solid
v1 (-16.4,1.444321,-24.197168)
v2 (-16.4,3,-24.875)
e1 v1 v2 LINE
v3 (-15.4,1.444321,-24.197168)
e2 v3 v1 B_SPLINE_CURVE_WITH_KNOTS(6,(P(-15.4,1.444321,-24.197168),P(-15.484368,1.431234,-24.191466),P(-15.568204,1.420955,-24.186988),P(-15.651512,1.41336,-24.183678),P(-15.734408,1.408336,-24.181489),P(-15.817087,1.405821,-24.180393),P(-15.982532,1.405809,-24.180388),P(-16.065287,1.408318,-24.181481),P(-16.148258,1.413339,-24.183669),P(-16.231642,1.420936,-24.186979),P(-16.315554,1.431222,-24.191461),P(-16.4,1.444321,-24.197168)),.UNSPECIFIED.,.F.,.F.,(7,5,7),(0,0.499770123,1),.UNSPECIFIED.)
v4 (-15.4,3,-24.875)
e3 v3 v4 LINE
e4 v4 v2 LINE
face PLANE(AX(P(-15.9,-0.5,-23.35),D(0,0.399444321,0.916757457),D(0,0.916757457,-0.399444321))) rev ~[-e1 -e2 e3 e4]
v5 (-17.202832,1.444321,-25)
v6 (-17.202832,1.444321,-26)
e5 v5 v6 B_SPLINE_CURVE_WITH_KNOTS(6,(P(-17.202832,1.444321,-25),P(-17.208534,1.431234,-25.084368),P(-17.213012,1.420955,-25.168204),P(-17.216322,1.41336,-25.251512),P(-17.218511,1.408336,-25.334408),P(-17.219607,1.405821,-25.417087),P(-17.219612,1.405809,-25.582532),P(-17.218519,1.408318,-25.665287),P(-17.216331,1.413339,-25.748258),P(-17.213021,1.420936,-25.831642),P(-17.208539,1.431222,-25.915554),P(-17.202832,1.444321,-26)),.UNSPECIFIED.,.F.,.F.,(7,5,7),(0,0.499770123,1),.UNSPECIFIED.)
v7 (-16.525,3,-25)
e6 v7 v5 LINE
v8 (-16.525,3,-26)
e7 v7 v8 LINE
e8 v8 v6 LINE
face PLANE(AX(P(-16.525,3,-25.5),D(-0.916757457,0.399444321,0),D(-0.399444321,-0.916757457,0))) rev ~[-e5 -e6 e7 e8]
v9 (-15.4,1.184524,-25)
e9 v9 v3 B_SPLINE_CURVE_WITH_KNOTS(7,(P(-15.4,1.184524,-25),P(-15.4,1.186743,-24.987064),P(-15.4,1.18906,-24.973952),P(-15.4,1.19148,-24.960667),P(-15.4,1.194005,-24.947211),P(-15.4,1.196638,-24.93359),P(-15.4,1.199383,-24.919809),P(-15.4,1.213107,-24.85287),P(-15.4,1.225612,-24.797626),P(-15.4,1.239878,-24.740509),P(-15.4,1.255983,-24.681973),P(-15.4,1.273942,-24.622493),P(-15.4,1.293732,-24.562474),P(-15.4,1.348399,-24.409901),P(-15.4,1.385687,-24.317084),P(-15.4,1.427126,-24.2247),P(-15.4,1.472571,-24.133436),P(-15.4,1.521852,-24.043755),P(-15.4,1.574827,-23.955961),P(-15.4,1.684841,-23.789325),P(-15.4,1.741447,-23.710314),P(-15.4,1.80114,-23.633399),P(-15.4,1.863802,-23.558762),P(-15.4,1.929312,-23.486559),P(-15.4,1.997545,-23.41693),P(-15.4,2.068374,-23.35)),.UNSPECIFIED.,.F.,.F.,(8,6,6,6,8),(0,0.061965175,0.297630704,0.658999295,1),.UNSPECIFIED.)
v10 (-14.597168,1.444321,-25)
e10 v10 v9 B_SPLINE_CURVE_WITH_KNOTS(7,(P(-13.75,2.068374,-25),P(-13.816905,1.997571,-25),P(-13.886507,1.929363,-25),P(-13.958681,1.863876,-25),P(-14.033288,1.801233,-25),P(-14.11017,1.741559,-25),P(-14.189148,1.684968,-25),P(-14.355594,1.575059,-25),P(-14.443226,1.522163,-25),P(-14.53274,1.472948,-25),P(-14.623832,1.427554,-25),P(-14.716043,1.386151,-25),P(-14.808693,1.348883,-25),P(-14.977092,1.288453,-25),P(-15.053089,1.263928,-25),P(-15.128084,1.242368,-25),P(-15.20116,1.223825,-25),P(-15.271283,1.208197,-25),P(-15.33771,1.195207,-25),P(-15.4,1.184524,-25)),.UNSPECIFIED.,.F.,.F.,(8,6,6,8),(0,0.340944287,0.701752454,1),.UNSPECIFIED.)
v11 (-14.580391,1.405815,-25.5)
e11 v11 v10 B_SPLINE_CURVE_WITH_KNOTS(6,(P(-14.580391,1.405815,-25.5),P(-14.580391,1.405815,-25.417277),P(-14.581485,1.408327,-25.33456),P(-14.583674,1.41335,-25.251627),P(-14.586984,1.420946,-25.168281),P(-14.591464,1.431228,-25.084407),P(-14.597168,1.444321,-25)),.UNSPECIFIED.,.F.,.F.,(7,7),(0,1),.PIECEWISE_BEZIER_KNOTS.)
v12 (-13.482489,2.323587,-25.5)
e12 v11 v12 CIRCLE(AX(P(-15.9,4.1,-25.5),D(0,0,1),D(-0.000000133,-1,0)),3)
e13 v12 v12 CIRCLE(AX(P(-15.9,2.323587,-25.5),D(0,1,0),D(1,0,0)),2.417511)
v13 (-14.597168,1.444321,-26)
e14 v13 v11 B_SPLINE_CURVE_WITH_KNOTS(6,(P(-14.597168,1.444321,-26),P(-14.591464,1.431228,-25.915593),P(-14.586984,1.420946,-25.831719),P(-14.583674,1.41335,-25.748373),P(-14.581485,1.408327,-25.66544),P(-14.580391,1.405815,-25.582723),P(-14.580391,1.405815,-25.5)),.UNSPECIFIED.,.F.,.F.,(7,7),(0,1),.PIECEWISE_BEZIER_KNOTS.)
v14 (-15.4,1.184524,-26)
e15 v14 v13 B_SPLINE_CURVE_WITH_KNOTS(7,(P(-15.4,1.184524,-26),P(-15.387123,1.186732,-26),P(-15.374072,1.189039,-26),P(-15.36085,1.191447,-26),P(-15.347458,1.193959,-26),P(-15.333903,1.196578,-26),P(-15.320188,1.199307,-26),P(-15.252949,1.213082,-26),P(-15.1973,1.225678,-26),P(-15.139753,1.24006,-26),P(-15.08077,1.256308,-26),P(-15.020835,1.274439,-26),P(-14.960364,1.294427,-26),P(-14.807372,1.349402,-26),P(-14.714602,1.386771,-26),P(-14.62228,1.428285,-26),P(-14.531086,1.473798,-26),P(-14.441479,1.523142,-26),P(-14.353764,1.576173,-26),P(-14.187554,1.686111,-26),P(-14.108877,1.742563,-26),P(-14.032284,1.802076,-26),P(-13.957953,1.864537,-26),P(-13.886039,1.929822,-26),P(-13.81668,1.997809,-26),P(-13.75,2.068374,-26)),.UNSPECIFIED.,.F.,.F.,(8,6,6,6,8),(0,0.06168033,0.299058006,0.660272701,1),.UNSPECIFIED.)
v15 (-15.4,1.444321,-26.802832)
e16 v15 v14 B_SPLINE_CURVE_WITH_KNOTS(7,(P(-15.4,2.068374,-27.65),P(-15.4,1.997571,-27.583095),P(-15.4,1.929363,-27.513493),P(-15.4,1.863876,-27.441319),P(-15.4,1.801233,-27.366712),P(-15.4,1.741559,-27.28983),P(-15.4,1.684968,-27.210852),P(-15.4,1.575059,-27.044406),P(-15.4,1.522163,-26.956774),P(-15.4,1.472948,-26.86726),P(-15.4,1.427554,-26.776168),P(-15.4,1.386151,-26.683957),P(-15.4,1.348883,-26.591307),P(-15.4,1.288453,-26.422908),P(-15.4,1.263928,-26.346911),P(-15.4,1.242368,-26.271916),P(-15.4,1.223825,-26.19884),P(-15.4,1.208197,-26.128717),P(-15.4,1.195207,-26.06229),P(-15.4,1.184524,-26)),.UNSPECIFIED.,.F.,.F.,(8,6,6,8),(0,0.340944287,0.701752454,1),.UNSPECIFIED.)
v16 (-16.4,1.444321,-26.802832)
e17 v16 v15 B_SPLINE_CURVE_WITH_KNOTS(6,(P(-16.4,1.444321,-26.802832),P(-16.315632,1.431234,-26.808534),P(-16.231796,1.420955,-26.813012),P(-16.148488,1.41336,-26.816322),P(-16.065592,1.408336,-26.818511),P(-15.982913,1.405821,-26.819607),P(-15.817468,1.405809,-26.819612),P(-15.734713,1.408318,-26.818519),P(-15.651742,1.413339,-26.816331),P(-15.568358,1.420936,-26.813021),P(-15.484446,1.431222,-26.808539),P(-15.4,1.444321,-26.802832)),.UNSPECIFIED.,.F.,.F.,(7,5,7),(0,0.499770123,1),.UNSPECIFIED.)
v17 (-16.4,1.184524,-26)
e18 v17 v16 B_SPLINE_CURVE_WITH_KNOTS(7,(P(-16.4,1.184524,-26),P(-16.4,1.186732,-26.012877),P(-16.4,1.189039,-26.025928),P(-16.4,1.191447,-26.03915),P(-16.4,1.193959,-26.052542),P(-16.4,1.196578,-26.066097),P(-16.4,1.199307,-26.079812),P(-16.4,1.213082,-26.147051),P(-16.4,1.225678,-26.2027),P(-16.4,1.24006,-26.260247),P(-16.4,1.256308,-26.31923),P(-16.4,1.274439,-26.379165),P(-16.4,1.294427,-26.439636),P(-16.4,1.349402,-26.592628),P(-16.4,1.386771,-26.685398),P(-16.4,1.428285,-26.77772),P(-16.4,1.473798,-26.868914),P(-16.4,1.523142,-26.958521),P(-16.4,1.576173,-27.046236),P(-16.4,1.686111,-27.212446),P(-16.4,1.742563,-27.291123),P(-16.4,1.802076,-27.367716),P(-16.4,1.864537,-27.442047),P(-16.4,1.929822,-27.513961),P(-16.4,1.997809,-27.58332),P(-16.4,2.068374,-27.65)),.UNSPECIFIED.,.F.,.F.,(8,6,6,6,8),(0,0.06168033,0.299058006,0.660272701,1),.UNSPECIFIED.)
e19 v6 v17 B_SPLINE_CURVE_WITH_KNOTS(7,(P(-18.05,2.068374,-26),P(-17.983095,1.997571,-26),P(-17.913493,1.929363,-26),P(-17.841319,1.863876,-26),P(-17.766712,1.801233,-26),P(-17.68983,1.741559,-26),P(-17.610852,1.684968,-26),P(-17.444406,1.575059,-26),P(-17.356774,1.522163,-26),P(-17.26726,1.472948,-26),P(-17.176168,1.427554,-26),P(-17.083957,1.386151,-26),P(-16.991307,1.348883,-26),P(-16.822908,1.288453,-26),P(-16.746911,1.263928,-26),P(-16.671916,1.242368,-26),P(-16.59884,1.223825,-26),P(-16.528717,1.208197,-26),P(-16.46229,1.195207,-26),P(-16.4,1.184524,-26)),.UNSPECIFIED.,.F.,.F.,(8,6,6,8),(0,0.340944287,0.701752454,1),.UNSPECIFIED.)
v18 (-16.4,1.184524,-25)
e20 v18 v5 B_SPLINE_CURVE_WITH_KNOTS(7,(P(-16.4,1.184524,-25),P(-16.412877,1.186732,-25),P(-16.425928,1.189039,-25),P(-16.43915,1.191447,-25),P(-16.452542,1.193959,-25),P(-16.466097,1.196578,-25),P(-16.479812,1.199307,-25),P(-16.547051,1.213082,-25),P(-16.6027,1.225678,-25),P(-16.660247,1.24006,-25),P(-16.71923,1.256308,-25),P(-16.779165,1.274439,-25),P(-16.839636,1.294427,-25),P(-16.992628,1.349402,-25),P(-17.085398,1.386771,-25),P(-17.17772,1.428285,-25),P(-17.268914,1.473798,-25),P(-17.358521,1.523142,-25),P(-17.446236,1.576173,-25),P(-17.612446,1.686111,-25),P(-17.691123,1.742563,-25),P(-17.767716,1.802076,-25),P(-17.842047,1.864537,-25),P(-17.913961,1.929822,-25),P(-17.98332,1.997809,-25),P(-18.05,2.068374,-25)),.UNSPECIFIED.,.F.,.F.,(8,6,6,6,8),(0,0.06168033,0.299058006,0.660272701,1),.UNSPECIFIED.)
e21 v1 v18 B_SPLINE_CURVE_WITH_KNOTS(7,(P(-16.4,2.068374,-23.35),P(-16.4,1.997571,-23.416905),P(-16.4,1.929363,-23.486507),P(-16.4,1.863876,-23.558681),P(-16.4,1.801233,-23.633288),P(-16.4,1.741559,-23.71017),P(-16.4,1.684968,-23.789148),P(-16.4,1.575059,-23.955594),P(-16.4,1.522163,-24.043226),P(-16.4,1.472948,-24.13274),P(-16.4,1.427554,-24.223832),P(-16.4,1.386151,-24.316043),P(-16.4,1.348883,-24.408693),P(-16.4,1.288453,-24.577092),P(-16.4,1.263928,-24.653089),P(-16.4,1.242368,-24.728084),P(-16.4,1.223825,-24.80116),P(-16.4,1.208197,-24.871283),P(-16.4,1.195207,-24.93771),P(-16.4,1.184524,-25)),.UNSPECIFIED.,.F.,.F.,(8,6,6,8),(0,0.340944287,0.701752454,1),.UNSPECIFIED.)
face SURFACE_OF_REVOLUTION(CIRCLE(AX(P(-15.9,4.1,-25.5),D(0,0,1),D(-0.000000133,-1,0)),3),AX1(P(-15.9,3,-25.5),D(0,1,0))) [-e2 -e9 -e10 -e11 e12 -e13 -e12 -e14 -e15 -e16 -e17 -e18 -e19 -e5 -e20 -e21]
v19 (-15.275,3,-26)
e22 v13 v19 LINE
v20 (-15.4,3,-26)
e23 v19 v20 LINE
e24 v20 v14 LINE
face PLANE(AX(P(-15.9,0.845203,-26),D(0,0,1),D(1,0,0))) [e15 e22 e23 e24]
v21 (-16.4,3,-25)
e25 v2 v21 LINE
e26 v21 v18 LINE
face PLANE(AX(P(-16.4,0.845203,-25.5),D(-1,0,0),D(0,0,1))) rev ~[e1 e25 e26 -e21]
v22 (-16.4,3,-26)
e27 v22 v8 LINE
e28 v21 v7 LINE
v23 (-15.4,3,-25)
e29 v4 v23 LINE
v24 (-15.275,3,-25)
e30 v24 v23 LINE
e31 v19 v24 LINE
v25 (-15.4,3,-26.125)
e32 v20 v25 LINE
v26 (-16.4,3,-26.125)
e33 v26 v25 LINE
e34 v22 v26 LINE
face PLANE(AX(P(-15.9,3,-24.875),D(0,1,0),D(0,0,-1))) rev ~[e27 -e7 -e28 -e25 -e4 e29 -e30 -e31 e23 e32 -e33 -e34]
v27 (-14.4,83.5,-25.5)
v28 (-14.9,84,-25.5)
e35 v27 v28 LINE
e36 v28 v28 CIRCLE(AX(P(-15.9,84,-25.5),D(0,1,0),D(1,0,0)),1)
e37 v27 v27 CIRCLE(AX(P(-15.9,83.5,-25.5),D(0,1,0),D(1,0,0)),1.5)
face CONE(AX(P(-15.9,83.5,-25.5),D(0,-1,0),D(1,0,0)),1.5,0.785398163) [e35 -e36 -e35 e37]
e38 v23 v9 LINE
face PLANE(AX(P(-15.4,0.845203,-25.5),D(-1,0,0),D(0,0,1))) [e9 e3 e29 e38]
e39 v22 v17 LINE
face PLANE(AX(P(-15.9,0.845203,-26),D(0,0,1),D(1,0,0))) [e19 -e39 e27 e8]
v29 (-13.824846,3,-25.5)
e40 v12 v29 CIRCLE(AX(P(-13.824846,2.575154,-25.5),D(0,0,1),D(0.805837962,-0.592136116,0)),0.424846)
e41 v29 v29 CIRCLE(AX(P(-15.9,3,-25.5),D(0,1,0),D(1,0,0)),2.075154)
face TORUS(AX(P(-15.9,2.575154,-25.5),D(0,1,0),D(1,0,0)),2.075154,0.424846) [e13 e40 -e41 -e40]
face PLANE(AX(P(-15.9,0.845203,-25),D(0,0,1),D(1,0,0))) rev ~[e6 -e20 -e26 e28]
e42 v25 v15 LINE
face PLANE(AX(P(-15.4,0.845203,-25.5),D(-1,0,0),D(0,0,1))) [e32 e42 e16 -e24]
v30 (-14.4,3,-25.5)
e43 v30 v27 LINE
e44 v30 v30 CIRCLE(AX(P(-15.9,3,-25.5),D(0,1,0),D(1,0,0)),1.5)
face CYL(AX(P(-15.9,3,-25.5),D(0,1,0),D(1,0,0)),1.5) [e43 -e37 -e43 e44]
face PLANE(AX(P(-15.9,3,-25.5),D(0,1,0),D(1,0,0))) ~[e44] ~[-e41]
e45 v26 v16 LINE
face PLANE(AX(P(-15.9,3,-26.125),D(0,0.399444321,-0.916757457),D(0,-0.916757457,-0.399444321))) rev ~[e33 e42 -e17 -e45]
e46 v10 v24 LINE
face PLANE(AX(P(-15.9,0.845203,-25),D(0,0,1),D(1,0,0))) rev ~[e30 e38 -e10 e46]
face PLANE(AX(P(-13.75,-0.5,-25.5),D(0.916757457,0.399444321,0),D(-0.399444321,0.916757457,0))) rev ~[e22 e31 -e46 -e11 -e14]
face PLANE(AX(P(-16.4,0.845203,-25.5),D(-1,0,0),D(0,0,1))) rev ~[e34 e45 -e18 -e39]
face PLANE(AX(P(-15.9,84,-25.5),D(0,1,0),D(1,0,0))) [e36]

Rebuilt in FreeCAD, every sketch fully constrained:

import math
import FreeCAD as App
import Part
import Sketcher
from FreeCAD import Vector
Q = App.Units.Quantity


def add_polygon(sketch, points):
    """Adds a closed chain of lines whose ends are joined by coincident constraints."""
    first, n = sketch.GeometryCount, len(points)
    for a, b in zip(points, points[1:] + points[:1]):
        sketch.addGeometry(Part.LineSegment(App.Vector(*a, 0), App.Vector(*b, 0)), False)
    for i in range(n):
        sketch.addConstraint(Sketcher.Constraint("Coincident", first + i, 2, first + (i + 1) % n, 1))

doc = App.newDocument("Part")
body = doc.addObject("PartDesign::Body", "Body")

sketch1 = body.newObject("Sketcher::SketchObject", "Sketch")
sketch1.AttachmentSupport = (doc.getObject("XY_Plane"), [""])
sketch1.MapMode = "FlatFace"
add_polygon(sketch1, [(-2.1, -3.5), (2.1, -3.5), (0.6, 0), (-0.6, 0)])
sketch1.addConstraint(Sketcher.Constraint("Horizontal", 0))
sketch1.addConstraint(Sketcher.Constraint("Horizontal", 2))
sketch1.addConstraint(Sketcher.Constraint("Symmetric", 1, 2, 2, 2, -1, 1))
sketch1.addConstraint(Sketcher.Constraint("Equal", 1, 3))
sketch1.addConstraint(Sketcher.Constraint("DistanceX", 0, 1, 0, 2, 4.3))
sketch1.addConstraint(Sketcher.Constraint("DistanceX", 2, 2, 2, 1, 1.25))
sketch1.addConstraint(Sketcher.Constraint("DistanceY", 0, 2, -1, 1, 3.5))
pad1 = body.newObject("PartDesign::Pad", "Pad")
pad1.Profile = sketch1
pad1.Length = 1
pad1.Midplane = True
body2 = doc.addObject("PartDesign::Body", "Body001")
doc.recompute()

body.Placement = App.Placement(Vector(0, 0, 0), App.Rotation(Vector(0, -1, 0), 90))
boolean = body2.newObject("PartDesign::Boolean", "Boolean")
boolean.Type = "Fuse"
boolean.addObjects([body])
body3 = doc.addObject("PartDesign::Body", "Body002")

sketch2 = body3.newObject("Sketcher::SketchObject", "Sketch001")
sketch2.AttachmentSupport = (doc.getObject("XY_Plane002"), [""])
sketch2.MapMode = "FlatFace"
add_polygon(sketch2, [(-2.1, -3.5), (2.1, -3.5), (0.6, 0), (-0.6, 0)])
sketch2.addConstraint(Sketcher.Constraint("Horizontal", 0))
sketch2.addConstraint(Sketcher.Constraint("Horizontal", 2))
sketch2.addConstraint(Sketcher.Constraint("Symmetric", 1, 2, 2, 2, -1, 1))
sketch2.addConstraint(Sketcher.Constraint("Equal", 1, 3))
sketch2.addConstraint(Sketcher.Constraint("DistanceX", 0, 1, 0, 2, 4.3))
sketch2.addConstraint(Sketcher.Constraint("DistanceX", 2, 2, 2, 1, 1.25))
sketch2.addConstraint(Sketcher.Constraint("DistanceY", 0, 2, -1, 1, 3.5))
pad2 = body3.newObject("PartDesign::Pad", "Pad001")
pad2.Profile = sketch2
pad2.Length = 1
pad2.Midplane = True
doc.recompute()

boolean2 = body3.newObject("PartDesign::Boolean", "Boolean001")
boolean2.Type = "Fuse"
boolean2.addObjects([body2])
body4 = doc.addObject("PartDesign::Body", "Body003")

sketch3 = body4.newObject("Sketcher::SketchObject", "Sketch002")
sketch3.AttachmentSupport = (doc.getObject("XY_Plane003"), [""])
sketch3.MapMode = "FlatFace"
sketch3.addGeometry(Part.LineSegment(Vector(1.5, 0, 0), Vector(1.5, 80.5, 0)), False)
sketch3.addGeometry(Part.LineSegment(Vector(1.5, 80.5, 0), Vector(1, 81, 0)), False)
sketch3.addGeometry(Part.LineSegment(Vector(1, 81, 0), Vector(0, 81, 0)), False)
sketch3.addGeometry(Part.LineSegment(Vector(0, 81, 0), Vector(0, -1.9, 0)), False)
sketch3.addGeometry(Part.ArcOfCircle(Part.Circle(Vector(0, 1.1, 0), Vector(0, 0, 1), 3), math.radians(-90), math.radians(-36)), False)
sketch3.addGeometry(Part.ArcOfCircle(Part.Circle(Vector(2.08, -0.42, 0), Vector(0, 0, 1), 0.42), math.radians(-36), math.radians(90)), False)
sketch3.addGeometry(Part.LineSegment(Vector(2.08, 0, 0), Vector(1.5, 0, 0)), False)
sketch3.addConstraint(Sketcher.Constraint("Coincident", 0, 2, 1, 1))
sketch3.addConstraint(Sketcher.Constraint("Coincident", 1, 2, 2, 1))
sketch3.addConstraint(Sketcher.Constraint("Coincident", 2, 2, 3, 1))
sketch3.addConstraint(Sketcher.Constraint("Coincident", 3, 2, 4, 1))
sketch3.addConstraint(Sketcher.Constraint("Tangent", 4, 2, 5, 1))
sketch3.addConstraint(Sketcher.Constraint("Tangent", 5, 2, 6, 1))
sketch3.addConstraint(Sketcher.Constraint("Coincident", 6, 2, 0, 1))
sketch3.addConstraint(Sketcher.Constraint("Vertical", 0))
sketch3.addConstraint(Sketcher.Constraint("Horizontal", 2))
sketch3.addConstraint(Sketcher.Constraint("Vertical", 3))
sketch3.addConstraint(Sketcher.Constraint("Horizontal", 6))
sketch3.addConstraint(Sketcher.Constraint("PointOnObject", 4, 3, -2))
sketch3.addConstraint(Sketcher.Constraint("PointOnObject", 2, 2, -2))
sketch3.addConstraint(Sketcher.Constraint("PointOnObject", 5, 2, -1))
sketch3.addConstraint(Sketcher.Constraint("Radius", 4, 3.0))
sketch3.addConstraint(Sketcher.Constraint("DistanceX", 2, 2, 2, 1, 1.0))
sketch3.addConstraint(Sketcher.Constraint("Angle", 1, Q("135 deg")))
sketch3.addConstraint(Sketcher.Constraint("DistanceY", 0, 1, 0, 2, 80.5))
sketch3.addConstraint(Sketcher.Constraint("DistanceY", 3, 2, 3, 1, 82.9))
sketch3.addConstraint(Sketcher.Constraint("DistanceY", -1, 1, 1, 2, 81.0))
sketch3.addConstraint(Sketcher.Constraint("Radius", 5, 0.424846))
revolution = body4.newObject("PartDesign::Revolution", "Revolution")
revolution.Profile = sketch3
revolution.ReferenceAxis = (sketch3, ["V_Axis"])
revolution.Angle = 360
doc.recompute()

boolean3 = body4.newObject("PartDesign::Boolean", "Boolean002")
boolean3.Type = "Cut"
boolean3.addObjects([body3])
body5 = doc.addObject("PartDesign::Body", "Body004")
doc.recompute()

body4.Placement = App.Placement(Vector(-15.9, 3, 25.5), App.Rotation(Vector(0, 0, 1), 0))
boolean4 = body5.newObject("PartDesign::Boolean", "Boolean003")
boolean4.Type = "Fuse"
boolean4.addObjects([body4])
body6 = doc.addObject("PartDesign::Body", "Body005")
doc.recompute()

body5.Placement = App.Placement(Vector(15.9, 0, -25.5), App.Rotation(Vector(0, 0, 1), 0))
boolean5 = body6.newObject("PartDesign::Boolean", "Boolean004")
boolean5.Type = "Fuse"
boolean5.addObjects([body5])
body7 = doc.addObject("PartDesign::Body", "Body006")
doc.recompute()

body6.Placement = App.Placement(Vector(-15.9, 0, -25.5), App.Rotation(Vector(0, 0, 1), 0))
boolean6 = body7.newObject("PartDesign::Boolean", "Boolean005")
boolean6.Type = "Fuse"
boolean6.addObjects([body6])

doc.recompute()
